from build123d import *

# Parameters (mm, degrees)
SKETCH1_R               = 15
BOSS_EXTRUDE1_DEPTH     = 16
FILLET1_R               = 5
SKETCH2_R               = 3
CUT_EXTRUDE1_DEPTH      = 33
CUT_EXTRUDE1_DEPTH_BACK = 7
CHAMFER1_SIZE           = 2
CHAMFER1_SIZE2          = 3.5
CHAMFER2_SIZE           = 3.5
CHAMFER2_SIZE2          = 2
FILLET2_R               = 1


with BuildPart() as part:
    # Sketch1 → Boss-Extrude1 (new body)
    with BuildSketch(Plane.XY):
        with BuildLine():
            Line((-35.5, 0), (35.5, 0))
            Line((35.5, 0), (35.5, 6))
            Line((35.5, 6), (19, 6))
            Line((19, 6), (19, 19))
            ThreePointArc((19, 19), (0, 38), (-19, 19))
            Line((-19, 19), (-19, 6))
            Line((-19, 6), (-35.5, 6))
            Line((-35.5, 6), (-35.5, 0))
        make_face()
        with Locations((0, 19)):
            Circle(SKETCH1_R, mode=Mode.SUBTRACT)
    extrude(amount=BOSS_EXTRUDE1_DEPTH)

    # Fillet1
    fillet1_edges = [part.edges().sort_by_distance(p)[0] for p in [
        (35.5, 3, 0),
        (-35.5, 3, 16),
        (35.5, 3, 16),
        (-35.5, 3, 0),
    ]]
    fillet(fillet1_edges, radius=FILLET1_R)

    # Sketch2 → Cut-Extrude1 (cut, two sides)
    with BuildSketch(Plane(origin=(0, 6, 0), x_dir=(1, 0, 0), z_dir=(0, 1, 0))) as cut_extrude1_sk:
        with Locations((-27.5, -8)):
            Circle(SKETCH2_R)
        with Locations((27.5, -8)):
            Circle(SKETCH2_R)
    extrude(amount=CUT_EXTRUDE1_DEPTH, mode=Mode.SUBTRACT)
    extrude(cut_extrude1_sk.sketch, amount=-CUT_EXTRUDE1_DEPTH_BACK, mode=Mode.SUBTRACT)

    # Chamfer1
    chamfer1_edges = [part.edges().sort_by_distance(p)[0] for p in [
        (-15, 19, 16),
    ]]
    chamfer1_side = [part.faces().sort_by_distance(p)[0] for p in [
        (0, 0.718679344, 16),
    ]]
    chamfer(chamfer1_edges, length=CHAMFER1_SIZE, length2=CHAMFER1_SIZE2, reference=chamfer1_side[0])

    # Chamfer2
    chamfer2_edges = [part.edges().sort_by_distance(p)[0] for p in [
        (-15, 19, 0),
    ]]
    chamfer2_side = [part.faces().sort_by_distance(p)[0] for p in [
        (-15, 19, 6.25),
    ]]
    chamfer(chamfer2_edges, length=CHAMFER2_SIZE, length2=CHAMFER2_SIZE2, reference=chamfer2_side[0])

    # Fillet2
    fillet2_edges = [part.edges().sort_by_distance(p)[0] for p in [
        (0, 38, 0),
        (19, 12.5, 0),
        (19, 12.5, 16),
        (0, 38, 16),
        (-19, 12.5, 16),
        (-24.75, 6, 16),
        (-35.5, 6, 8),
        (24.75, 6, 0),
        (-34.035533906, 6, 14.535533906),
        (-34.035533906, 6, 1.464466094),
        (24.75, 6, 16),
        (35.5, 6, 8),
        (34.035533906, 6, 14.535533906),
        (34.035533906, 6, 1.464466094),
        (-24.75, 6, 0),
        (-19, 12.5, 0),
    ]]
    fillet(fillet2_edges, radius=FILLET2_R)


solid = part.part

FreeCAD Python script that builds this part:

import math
import FreeCAD as App
import Part
import Sketcher
from FreeCAD import Vector
Q = App.Units.Quantity


def edges_at(feature, points):
    """Names of the edges that pass closest to the given points."""
    edges = feature.Shape.Edges
    near = lambda p: min(range(len(edges)), key=lambda i: edges[i].distToShape(Part.Vertex(*p))[0])
    return sorted({f"Edge{near(p) + 1}" for p in points})

doc = App.newDocument("Part")
body = doc.addObject("PartDesign::Body", "Body")

# Sketch on XY plane
sketch1 = body.newObject("Sketcher::SketchObject", "Sketch")
sketch1.AttachmentSupport = (doc.getObject("XY_Plane"), [""])
sketch1.MapMode = "FlatFace"
sketch1.addGeometry(Part.LineSegment(Vector(-35.5, 0, 0), Vector(35.5, 0, 0)), False)
sketch1.addGeometry(Part.LineSegment(Vector(35.5, 0, 0), Vector(35.5, 6, 0)), False)
sketch1.addGeometry(Part.LineSegment(Vector(35.5, 6, 0), Vector(19, 6, 0)), False)
sketch1.addGeometry(Part.LineSegment(Vector(19, 6, 0), Vector(19, 19, 0)), False)
sketch1.addGeometry(Part.ArcOfCircle(Part.Circle(Vector(0, 19, 0), Vector(0, 0, 1), 19), math.radians(0), math.radians(180)), False)
sketch1.addGeometry(Part.LineSegment(Vector(-19, 19, 0), Vector(-19, 6, 0)), False)
sketch1.addGeometry(Part.LineSegment(Vector(-19, 6, 0), Vector(-35.5, 6, 0)), False)
sketch1.addGeometry(Part.LineSegment(Vector(-35.5, 6, 0), Vector(-35.5, 0, 0)), False)
sketch1.addGeometry(Part.Circle(Vector(0, 19, 0), Vector(0, 0, 1), 15), False)
sketch1.addConstraint(Sketcher.Constraint("Coincident", 0, 2, 1, 1))
sketch1.addConstraint(Sketcher.Constraint("Coincident", 1, 2, 2, 1))
sketch1.addConstraint(Sketcher.Constraint("Coincident", 2, 2, 3, 1))
sketch1.addConstraint(Sketcher.Constraint("Tangent", 3, 2, 4, 1))
sketch1.addConstraint(Sketcher.Constraint("Tangent", 4, 2, 5, 1))
sketch1.addConstraint(Sketcher.Constraint("Coincident", 5, 2, 6, 1))
sketch1.addConstraint(Sketcher.Constraint("Coincident", 6, 2, 7, 1))
sketch1.addConstraint(Sketcher.Constraint("Coincident", 7, 2, 0, 1))
sketch1.addConstraint(Sketcher.Constraint("Horizontal", 0))
sketch1.addConstraint(Sketcher.Constraint("Vertical", 1))
sketch1.addConstraint(Sketcher.Constraint("Horizontal", 2))
sketch1.addConstraint(Sketcher.Constraint("Vertical", 3))
sketch1.addConstraint(Sketcher.Constraint("Vertical", 5))
sketch1.addConstraint(Sketcher.Constraint("Horizontal", 6))
sketch1.addConstraint(Sketcher.Constraint("Vertical", 7))
sketch1.addConstraint(Sketcher.Constraint("Coincident", 8, 3, 4, 3))
sketch1.addConstraint(Sketcher.Constraint("Symmetric", 0, 2, 7, 2, -1, 1))
sketch1.addConstraint(Sketcher.Constraint("Symmetric", 2, 2, 5, 2, -2))
sketch1.addConstraint(Sketcher.Constraint("Diameter", 8, Q("30 mm")))
sketch1.addConstraint(Sketcher.Constraint("Radius", 4, Q("19 mm")))
sketch1.addConstraint(Sketcher.Constraint("DistanceX", 0, 1, 0, 2, Q("71 mm")))
sketch1.addConstraint(Sketcher.Constraint("DistanceY", 1, 1, 1, 2, Q("6 mm")))
sketch1.addConstraint(Sketcher.Constraint("DistanceY", 3, 1, 3, 2, Q("13 mm")))
pad1 = body.newObject("PartDesign::Pad", "Pad")
pad1.Profile = sketch1
pad1.Length = 16
doc.recompute()

fillet = body.newObject("PartDesign::Fillet", "Fillet")
fillet.Base = (pad1, edges_at(pad1, [
    (35.5, 3, 0),
    (-35.5, 3, 16),
    (35.5, 3, 16),
    (-35.5, 3, 0),
]))
fillet.Radius = 5

# Sketch on XZ plane
sketch2 = body.newObject("Sketcher::SketchObject", "Sketch001")
sketch2.AttachmentSupport = (doc.getObject("XZ_Plane"), [""])
sketch2.MapMode = "FlatFace"
sketch2.AttachmentOffset = App.Placement(Vector(0, 0, -6), App.Rotation())
sketch2.addGeometry(Part.Circle(Vector(-27.5, 8, 0), Vector(0, 0, 1), 3), False)
sketch2.addGeometry(Part.Circle(Vector(27.5, 8, 0), Vector(0, 0, 1), 3), False)
sketch2.addConstraint(Sketcher.Constraint("Equal", 0, 1))
sketch2.addConstraint(Sketcher.Constraint("Symmetric", 0, 3, 1, 3, -2))
sketch2.addConstraint(Sketcher.Constraint("Diameter", 0, Q("6 mm")))
sketch2.addConstraint(Sketcher.Constraint("DistanceY", -1, 1, 0, 3, Q("8 mm")))
sketch2.addConstraint(Sketcher.Constraint("DistanceX", 0, 3, 1, 3, Q("55 mm")))
pocket1 = body.newObject("PartDesign::Pocket", "Pocket")
pocket1.Profile = sketch2
pocket1.Type = "ThroughAll"
pocket1.Midplane = True
doc.recompute()

chamfer = body.newObject("PartDesign::Chamfer", "Chamfer")
chamfer.Base = (pocket1, edges_at(pocket1, [(-15, 19, 16)]))
chamfer.ChamferType = "Two distances"
chamfer.Size = 2
chamfer.Size2 = 3.5
doc.recompute()

chamfer2 = body.newObject("PartDesign::Chamfer", "Chamfer001")
chamfer2.Base = (chamfer, edges_at(chamfer, [(-15, 19, 0)]))
chamfer2.ChamferType = "Two distances"
chamfer2.Size = 3.5
chamfer2.Size2 = 2
doc.recompute()

fillet2 = body.newObject("PartDesign::Fillet", "Fillet001")
fillet2.Base = (chamfer2, edges_at(chamfer2, [
    (0, 38, 0),
    (19, 12.5, 0),
    (19, 12.5, 16),
    (0, 38, 16),
    (-19, 12.5, 16),
    (-24.75, 6, 16),
    (-35.5, 6, 8),
    (24.75, 6, 0),
    (-34.036, 6, 14.536),
    (-34.036, 6, 1.464),
    (24.75, 6, 16),
    (35.5, 6, 8),
    (34.036, 6, 14.536),
    (34.036, 6, 1.464),
    (-24.75, 6, 0),
    (-19, 12.5, 0),
]))
fillet2.Radius = 1

doc.recompute()
